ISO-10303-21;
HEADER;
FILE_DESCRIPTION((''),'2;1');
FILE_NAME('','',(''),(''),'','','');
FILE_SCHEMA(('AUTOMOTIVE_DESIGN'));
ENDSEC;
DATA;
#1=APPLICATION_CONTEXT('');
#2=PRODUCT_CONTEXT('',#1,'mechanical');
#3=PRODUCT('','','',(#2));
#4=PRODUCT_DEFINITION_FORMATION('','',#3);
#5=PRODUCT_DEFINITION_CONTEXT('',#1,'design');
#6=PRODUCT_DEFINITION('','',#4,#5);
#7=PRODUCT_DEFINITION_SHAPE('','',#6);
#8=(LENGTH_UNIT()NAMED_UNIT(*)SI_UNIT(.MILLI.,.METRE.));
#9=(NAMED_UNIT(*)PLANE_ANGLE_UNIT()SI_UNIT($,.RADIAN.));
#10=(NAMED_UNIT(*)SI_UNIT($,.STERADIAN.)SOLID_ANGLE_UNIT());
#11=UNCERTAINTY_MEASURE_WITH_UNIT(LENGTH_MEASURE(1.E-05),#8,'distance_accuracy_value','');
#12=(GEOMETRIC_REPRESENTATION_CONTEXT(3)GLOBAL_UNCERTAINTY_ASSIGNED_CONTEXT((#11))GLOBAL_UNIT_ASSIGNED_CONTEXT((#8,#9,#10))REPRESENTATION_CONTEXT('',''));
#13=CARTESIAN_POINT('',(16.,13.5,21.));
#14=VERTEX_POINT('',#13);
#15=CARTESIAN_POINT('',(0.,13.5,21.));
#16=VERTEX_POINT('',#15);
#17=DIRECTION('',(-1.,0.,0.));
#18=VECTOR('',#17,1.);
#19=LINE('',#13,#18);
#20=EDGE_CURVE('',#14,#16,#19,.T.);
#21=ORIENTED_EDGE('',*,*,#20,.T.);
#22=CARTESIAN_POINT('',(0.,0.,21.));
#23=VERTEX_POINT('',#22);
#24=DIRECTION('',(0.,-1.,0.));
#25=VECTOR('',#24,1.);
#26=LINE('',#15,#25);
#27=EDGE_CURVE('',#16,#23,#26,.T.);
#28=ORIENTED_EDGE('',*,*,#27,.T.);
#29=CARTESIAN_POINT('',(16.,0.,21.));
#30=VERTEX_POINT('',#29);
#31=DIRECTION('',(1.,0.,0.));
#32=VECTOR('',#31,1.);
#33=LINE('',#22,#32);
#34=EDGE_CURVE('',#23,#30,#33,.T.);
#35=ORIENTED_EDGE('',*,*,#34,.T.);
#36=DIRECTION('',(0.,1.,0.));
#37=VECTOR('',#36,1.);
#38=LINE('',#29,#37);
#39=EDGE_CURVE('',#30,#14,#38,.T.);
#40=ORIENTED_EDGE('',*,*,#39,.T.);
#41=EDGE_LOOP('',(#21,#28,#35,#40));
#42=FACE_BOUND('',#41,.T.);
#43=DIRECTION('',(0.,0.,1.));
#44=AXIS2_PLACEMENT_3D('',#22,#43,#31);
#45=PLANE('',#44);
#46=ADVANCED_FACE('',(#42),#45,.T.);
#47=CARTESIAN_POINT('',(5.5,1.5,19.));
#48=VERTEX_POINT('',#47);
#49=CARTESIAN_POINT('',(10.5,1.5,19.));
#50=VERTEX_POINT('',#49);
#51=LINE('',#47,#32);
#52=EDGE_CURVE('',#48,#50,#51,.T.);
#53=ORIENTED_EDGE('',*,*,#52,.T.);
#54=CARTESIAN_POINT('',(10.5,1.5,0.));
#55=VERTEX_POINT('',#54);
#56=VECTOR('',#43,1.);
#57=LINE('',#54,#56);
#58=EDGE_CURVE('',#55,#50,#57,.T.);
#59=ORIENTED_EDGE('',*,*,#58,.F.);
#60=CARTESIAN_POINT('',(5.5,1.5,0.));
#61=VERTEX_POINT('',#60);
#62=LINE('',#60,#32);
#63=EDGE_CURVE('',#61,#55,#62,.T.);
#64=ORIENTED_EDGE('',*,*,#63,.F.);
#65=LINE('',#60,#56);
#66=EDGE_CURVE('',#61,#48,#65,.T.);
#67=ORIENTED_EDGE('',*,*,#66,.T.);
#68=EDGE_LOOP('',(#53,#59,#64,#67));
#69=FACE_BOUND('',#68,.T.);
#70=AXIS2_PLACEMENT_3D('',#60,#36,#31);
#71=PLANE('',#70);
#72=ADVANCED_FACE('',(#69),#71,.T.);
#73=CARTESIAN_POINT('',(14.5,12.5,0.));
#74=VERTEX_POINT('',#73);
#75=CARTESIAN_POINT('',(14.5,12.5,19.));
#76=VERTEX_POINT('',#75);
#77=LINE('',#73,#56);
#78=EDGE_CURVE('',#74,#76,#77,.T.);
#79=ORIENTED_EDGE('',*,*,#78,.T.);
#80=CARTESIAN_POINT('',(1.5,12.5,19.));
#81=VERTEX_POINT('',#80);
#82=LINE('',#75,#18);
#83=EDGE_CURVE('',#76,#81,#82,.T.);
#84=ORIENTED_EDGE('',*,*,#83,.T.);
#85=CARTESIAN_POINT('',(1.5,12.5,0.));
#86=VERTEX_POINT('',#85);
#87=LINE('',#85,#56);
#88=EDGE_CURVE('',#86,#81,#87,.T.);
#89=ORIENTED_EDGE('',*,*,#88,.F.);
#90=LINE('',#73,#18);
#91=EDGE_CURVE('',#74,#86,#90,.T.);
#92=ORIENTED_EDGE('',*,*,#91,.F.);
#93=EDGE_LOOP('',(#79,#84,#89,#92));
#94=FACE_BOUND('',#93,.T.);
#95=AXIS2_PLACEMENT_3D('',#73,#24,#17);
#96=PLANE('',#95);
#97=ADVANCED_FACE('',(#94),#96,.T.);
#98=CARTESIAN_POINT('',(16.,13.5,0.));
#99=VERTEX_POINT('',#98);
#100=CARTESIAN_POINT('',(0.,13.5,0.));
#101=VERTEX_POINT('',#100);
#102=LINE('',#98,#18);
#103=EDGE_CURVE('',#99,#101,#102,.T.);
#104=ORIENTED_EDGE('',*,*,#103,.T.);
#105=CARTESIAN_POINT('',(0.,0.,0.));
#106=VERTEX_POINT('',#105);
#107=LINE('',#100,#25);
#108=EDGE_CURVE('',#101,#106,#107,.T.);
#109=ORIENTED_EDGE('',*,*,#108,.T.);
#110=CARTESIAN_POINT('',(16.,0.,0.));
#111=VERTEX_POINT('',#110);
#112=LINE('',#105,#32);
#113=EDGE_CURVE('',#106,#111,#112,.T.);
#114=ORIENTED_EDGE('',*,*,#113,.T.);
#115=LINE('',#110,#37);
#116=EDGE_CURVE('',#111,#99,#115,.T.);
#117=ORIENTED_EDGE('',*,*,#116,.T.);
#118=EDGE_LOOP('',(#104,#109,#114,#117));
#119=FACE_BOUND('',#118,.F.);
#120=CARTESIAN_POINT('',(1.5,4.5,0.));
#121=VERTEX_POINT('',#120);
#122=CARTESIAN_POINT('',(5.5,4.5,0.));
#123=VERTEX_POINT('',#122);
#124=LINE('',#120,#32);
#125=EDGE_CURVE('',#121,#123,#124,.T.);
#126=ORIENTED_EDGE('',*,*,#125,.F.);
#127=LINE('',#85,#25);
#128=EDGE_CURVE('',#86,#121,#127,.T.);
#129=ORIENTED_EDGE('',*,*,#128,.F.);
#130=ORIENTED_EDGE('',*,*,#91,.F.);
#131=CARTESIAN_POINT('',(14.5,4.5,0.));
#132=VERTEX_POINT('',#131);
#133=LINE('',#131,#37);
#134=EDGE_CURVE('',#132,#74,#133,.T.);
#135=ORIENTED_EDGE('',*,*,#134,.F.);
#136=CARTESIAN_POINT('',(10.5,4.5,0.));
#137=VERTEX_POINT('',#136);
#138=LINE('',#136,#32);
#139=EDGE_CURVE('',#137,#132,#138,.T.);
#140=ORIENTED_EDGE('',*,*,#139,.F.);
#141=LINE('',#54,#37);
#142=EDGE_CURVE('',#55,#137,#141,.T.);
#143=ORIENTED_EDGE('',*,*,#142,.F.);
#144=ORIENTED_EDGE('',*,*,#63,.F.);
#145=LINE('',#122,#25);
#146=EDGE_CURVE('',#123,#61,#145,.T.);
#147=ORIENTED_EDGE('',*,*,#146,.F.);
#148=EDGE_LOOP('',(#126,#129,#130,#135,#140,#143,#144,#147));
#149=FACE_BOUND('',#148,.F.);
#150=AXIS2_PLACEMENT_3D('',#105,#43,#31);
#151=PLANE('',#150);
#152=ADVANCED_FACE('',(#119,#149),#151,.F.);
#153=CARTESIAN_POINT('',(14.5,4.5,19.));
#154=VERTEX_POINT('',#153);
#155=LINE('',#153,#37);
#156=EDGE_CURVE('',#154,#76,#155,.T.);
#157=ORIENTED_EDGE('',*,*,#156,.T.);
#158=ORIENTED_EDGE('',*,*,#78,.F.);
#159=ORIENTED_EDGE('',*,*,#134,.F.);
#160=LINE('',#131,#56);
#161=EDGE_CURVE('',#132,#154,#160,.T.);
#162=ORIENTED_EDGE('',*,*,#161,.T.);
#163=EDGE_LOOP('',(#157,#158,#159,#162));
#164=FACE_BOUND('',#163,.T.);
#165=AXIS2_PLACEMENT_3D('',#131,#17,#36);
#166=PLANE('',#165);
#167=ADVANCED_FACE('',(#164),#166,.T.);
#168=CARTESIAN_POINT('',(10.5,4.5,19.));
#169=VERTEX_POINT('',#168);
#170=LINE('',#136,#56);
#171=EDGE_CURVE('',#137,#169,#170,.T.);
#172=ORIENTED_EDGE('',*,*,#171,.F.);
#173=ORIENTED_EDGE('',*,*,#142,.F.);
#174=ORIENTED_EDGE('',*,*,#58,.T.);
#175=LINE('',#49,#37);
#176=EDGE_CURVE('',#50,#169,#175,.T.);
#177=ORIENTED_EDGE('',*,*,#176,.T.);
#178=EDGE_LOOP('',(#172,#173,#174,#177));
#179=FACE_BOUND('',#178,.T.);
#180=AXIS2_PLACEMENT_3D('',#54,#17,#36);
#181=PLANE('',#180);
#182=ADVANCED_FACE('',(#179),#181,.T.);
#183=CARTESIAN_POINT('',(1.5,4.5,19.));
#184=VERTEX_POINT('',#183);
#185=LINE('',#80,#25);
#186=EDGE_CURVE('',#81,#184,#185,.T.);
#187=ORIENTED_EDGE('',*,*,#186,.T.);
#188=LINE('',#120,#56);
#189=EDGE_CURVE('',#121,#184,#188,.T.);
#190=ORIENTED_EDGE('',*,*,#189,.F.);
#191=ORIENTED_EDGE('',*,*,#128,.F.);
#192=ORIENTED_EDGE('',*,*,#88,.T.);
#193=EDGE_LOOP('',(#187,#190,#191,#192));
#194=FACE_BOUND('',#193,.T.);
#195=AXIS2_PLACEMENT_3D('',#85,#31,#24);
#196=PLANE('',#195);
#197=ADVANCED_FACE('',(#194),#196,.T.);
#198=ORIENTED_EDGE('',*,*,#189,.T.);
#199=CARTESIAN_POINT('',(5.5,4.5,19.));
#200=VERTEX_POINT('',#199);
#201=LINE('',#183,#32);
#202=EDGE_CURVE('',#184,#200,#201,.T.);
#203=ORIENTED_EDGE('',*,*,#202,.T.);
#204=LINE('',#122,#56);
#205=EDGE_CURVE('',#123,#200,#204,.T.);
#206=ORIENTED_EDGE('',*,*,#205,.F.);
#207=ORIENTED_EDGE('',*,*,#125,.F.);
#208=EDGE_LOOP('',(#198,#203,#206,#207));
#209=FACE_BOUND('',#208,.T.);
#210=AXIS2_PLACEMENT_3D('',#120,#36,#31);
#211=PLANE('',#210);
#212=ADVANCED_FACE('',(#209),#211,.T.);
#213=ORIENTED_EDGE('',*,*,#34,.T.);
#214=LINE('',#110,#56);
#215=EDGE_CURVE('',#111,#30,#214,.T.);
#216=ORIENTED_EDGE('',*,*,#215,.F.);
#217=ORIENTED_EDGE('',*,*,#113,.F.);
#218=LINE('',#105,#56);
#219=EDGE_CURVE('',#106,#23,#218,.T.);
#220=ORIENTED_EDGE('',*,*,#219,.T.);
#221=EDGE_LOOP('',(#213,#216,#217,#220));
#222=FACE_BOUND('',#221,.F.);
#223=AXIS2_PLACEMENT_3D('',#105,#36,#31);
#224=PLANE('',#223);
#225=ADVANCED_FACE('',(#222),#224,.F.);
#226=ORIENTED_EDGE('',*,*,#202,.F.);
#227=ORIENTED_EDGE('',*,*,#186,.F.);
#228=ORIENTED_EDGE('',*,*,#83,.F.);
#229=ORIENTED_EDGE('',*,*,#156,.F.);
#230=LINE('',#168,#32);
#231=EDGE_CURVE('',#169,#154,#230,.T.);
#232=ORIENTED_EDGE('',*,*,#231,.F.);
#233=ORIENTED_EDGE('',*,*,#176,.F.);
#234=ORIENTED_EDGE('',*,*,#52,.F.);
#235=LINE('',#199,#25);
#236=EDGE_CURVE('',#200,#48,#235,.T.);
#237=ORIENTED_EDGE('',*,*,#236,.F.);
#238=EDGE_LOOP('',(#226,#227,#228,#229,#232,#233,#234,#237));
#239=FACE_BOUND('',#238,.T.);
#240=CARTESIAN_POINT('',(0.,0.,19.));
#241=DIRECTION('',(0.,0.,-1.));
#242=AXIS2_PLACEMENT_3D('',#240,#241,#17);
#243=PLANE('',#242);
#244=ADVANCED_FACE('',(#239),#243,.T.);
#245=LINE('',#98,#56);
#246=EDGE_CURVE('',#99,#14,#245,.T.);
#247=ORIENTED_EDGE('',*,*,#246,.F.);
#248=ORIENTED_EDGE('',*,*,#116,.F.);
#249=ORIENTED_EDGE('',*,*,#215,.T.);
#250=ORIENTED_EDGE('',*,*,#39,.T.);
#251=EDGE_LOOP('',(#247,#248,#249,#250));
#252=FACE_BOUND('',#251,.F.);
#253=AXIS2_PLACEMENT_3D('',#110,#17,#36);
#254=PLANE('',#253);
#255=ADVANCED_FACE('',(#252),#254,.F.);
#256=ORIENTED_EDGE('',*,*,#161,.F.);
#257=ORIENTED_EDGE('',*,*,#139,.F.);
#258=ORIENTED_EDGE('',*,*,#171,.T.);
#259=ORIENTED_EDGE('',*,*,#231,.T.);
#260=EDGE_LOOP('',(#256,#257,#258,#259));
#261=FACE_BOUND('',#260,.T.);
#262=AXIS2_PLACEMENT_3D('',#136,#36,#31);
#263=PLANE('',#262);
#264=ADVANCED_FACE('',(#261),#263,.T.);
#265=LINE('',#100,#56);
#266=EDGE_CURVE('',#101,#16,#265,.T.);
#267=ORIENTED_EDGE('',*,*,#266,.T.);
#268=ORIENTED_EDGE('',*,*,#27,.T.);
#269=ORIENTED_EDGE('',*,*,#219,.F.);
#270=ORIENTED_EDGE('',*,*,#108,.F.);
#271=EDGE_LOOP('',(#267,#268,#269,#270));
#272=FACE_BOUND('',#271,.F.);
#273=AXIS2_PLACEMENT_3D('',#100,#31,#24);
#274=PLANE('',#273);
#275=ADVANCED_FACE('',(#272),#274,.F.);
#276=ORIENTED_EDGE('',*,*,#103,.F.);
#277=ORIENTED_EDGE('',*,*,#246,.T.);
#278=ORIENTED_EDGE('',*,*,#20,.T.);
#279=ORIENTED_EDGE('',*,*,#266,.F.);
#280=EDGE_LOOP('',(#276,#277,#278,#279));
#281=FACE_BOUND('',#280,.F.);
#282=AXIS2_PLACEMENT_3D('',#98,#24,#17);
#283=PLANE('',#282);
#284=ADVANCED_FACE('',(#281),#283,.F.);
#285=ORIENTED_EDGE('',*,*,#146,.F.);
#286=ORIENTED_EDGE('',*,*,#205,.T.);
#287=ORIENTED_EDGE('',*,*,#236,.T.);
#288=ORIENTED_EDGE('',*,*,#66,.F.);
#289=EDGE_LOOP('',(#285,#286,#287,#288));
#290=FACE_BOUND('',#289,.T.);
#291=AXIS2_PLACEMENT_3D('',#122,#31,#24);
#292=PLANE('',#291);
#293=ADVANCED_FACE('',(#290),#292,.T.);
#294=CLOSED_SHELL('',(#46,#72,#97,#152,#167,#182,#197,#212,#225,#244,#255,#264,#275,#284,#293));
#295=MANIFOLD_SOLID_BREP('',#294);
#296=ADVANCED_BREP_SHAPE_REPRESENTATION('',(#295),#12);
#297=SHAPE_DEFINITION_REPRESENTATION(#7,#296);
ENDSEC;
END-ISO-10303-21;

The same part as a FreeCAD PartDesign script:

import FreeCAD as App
import Part
import Sketcher
Q = App.Units.Quantity

doc = App.newDocument("Part")
body = doc.addObject("PartDesign::Body", "Body")

# Sketch on XY plane
sketch1 = body.newObject("Sketcher::SketchObject", "Sketch")
sketch1.AttachmentSupport = (doc.getObject("XY_Plane"), [""])
sketch1.MapMode = "FlatFace"
sketch1.addGeometry([
    Part.LineSegment(App.Vector(0, 14, 0), App.Vector(0, 0, 0)),
    Part.LineSegment(App.Vector(0, 0, 0), App.Vector(16, 0, 0)),
    Part.LineSegment(App.Vector(16, 0, 0), App.Vector(16, 14, 0)),
    Part.LineSegment(App.Vector(16, 14, 0), App.Vector(0, 14, 0)),
], False)
sketch1.addConstraint([
    Sketcher.Constraint("Coincident", 0, 2, 1, 1),
    Sketcher.Constraint("Coincident", 1, 2, 2, 1),
    Sketcher.Constraint("Coincident", 2, 2, 3, 1),
    Sketcher.Constraint("Coincident", 3, 2, 0, 1),
    Sketcher.Constraint("Vertical", 0),
    Sketcher.Constraint("Horizontal", 1),
    Sketcher.Constraint("Vertical", 2),
    Sketcher.Constraint("Horizontal", 3),
    Sketcher.Constraint("Coincident", 0, 2, -1, 1),
    Sketcher.Constraint("DistanceX", 1, 1, 1, 2, Q("16 mm")),
    Sketcher.Constraint("DistanceY", 0, 2, 0, 1, Q("13.5 mm")),
])
pad1 = body.newObject("PartDesign::Pad", "Pad")
pad1.Profile = sketch1
pad1.Length = 21

# Sketch on XY plane
sketch2 = body.newObject("Sketcher::SketchObject", "Sketch001")
sketch2.AttachmentSupport = (doc.getObject("XY_Plane"), [""])
sketch2.MapMode = "FlatFace"
sketch2.addGeometry([
    Part.LineSegment(App.Vector(1.5, 12.5, 0), App.Vector(14.5, 12.5, 0)),  # 0
    Part.LineSegment(App.Vector(14.5, 12.5, 0), App.Vector(14.5, 4.5, 0)),  # 1
    Part.LineSegment(App.Vector(14.5, 4.5, 0), App.Vector(10.5, 4.5, 0)),  # 2
    Part.LineSegment(App.Vector(10.5, 4.5, 0), App.Vector(10.5, 1.5, 0)),  # 3
    Part.LineSegment(App.Vector(10.5, 1.5, 0), App.Vector(5.5, 1.5, 0)),  # 4
    Part.LineSegment(App.Vector(5.5, 1.5, 0), App.Vector(5.5, 4.5, 0)),  # 5
    Part.LineSegment(App.Vector(5.5, 4.5, 0), App.Vector(1.5, 4.5, 0)),  # 6
    Part.LineSegment(App.Vector(1.5, 4.5, 0), App.Vector(1.5, 12.5, 0)),  # 7
], False)
sketch2.addConstraint([
    Sketcher.Constraint("Coincident", 0, 2, 1, 1),
    Sketcher.Constraint("Coincident", 1, 2, 2, 1),
    Sketcher.Constraint("Coincident", 2, 2, 3, 1),
    Sketcher.Constraint("Coincident", 3, 2, 4, 1),
    Sketcher.Constraint("Coincident", 4, 2, 5, 1),
    Sketcher.Constraint("Coincident", 5, 2, 6, 1),
    Sketcher.Constraint("Coincident", 6, 2, 7, 1),
    Sketcher.Constraint("Coincident", 7, 2, 0, 1),
    Sketcher.Constraint("Horizontal", 0),
    Sketcher.Constraint("Vertical", 1),
    Sketcher.Constraint("Horizontal", 2),
    Sketcher.Constraint("Vertical", 3),
    Sketcher.Constraint("Horizontal", 4),
    Sketcher.Constraint("Vertical", 5),
    Sketcher.Constraint("Horizontal", 6),
    Sketcher.Constraint("Vertical", 7),
    Sketcher.Constraint("Horizontal", 2, 2, 5, 2),
    Sketcher.Constraint("Equal", 2, 6),
    Sketcher.Constraint("DistanceX", 0, 1, 0, 2, Q("13 mm")),
    Sketcher.Constraint("DistanceX", 4, 2, 4, 1, Q("5 mm")),
    Sketcher.Constraint("DistanceY", 1, 2, 1, 1, Q("8 mm")),
    Sketcher.Constraint("DistanceY", 3, 2, 3, 1, Q("3 mm")),
    Sketcher.Constraint("DistanceX", -1, 1, 0, 2, Q("14.5 mm")),
    Sketcher.Constraint("DistanceY", -1, 1, 0, 2, Q("12.5 mm")),
])
pocket1 = body.newObject("PartDesign::Pocket", "Pocket")
pocket1.Profile = sketch2
pocket1.Length = 19
pocket1.Reversed = True

doc.recompute()
